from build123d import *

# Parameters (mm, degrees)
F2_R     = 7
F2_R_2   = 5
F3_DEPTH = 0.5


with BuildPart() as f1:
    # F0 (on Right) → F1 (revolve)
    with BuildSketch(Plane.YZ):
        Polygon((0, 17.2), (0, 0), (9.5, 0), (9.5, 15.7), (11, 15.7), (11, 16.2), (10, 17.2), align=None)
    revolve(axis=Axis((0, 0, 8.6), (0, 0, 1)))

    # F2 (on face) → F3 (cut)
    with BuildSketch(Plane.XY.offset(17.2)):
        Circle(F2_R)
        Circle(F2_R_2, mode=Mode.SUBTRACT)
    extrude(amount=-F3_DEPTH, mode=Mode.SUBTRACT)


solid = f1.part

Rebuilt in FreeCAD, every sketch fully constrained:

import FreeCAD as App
import Part
import Sketcher
from FreeCAD import Vector
Q = App.Units.Quantity


def add_polygon(sketch, points):
    """Adds a closed chain of lines whose ends are joined by coincident constraints."""
    first, n = sketch.GeometryCount, len(points)
    for a, b in zip(points, points[1:] + points[:1]):
        sketch.addGeometry(Part.LineSegment(App.Vector(*a, 0), App.Vector(*b, 0)), False)
    for i in range(n):
        sketch.addConstraint(Sketcher.Constraint("Coincident", first + i, 2, first + (i + 1) % n, 1))

doc = App.newDocument("Part")
body = doc.addObject("PartDesign::Body", "Body")

# Sketch on YZ plane
sketch1 = doc.addObject("Sketcher::SketchObject", "Sketch")
body.addObject(sketch1)
sketch1.AttachmentSupport = (doc.YZ_Plane, [""])
sketch1.MapMode = "FlatFace"
add_polygon(sketch1, [(0, 17.2), (0, 0), (9.5, 0), (9.5, 15.7), (11, 15.7), (11, 16.2), (10, 17.2)])  # lines 0-6
sketch1.addConstraint([
    Sketcher.Constraint("Vertical", 0),
    Sketcher.Constraint("Horizontal", 1),
    Sketcher.Constraint("Vertical", 2),
    Sketcher.Constraint("Horizontal", 3),
    Sketcher.Constraint("Vertical", 4),
    Sketcher.Constraint("Horizontal", 6),
    Sketcher.Constraint("Coincident", 0, 2, -1, 1),
    Sketcher.Constraint("DistanceX", 6, 2, 6, 1, Q("10 mm")),
    Sketcher.Constraint("Angle", 5, Q("135 deg")),
    Sketcher.Constraint("DistanceX", 1, 1, 1, 2, Q("9.5 mm")),
    Sketcher.Constraint("DistanceX", 3, 1, 3, 2, Q("1.5 mm")),
    Sketcher.Constraint("DistanceY", 0, 2, 0, 1, Q("17.2 mm")),
    Sketcher.Constraint("DistanceY", 2, 1, 2, 2, Q("15.7 mm")),
])
revolution = doc.addObject("PartDesign::Revolution", "Revolution")
body.addObject(revolution)
revolution.Profile = sketch1
revolution.ReferenceAxis = (sketch1, ["V_Axis"])
revolution.Angle = 360

# Sketch on XY plane
sketch2 = doc.addObject("Sketcher::SketchObject", "Sketch001")
body.addObject(sketch2)
sketch2.AttachmentSupport = (doc.XY_Plane, [""])
sketch2.MapMode = "FlatFace"
sketch2.AttachmentOffset = App.Placement(Vector(0, 0, 17.2), App.Rotation())
sketch2.addGeometry([
    Part.Circle(Vector(0, 0, 0), Vector(0, 0, 1), 7),
    Part.Circle(Vector(0, 0, 0), Vector(0, 0, 1), 5),
], False)
sketch2.addConstraint([
    Sketcher.Constraint("Coincident", 0, 3, -1, 1),
    Sketcher.Constraint("Coincident", 1, 3, -1, 1),
    Sketcher.Constraint("Diameter", 0, Q("14 mm")),
    Sketcher.Constraint("Diameter", 1, Q("10 mm")),
])
pocket1 = doc.addObject("PartDesign::Pocket", "Pocket")
body.addObject(pocket1)
pocket1.Profile = sketch2
pocket1.Length = 0.5

doc.recompute()
